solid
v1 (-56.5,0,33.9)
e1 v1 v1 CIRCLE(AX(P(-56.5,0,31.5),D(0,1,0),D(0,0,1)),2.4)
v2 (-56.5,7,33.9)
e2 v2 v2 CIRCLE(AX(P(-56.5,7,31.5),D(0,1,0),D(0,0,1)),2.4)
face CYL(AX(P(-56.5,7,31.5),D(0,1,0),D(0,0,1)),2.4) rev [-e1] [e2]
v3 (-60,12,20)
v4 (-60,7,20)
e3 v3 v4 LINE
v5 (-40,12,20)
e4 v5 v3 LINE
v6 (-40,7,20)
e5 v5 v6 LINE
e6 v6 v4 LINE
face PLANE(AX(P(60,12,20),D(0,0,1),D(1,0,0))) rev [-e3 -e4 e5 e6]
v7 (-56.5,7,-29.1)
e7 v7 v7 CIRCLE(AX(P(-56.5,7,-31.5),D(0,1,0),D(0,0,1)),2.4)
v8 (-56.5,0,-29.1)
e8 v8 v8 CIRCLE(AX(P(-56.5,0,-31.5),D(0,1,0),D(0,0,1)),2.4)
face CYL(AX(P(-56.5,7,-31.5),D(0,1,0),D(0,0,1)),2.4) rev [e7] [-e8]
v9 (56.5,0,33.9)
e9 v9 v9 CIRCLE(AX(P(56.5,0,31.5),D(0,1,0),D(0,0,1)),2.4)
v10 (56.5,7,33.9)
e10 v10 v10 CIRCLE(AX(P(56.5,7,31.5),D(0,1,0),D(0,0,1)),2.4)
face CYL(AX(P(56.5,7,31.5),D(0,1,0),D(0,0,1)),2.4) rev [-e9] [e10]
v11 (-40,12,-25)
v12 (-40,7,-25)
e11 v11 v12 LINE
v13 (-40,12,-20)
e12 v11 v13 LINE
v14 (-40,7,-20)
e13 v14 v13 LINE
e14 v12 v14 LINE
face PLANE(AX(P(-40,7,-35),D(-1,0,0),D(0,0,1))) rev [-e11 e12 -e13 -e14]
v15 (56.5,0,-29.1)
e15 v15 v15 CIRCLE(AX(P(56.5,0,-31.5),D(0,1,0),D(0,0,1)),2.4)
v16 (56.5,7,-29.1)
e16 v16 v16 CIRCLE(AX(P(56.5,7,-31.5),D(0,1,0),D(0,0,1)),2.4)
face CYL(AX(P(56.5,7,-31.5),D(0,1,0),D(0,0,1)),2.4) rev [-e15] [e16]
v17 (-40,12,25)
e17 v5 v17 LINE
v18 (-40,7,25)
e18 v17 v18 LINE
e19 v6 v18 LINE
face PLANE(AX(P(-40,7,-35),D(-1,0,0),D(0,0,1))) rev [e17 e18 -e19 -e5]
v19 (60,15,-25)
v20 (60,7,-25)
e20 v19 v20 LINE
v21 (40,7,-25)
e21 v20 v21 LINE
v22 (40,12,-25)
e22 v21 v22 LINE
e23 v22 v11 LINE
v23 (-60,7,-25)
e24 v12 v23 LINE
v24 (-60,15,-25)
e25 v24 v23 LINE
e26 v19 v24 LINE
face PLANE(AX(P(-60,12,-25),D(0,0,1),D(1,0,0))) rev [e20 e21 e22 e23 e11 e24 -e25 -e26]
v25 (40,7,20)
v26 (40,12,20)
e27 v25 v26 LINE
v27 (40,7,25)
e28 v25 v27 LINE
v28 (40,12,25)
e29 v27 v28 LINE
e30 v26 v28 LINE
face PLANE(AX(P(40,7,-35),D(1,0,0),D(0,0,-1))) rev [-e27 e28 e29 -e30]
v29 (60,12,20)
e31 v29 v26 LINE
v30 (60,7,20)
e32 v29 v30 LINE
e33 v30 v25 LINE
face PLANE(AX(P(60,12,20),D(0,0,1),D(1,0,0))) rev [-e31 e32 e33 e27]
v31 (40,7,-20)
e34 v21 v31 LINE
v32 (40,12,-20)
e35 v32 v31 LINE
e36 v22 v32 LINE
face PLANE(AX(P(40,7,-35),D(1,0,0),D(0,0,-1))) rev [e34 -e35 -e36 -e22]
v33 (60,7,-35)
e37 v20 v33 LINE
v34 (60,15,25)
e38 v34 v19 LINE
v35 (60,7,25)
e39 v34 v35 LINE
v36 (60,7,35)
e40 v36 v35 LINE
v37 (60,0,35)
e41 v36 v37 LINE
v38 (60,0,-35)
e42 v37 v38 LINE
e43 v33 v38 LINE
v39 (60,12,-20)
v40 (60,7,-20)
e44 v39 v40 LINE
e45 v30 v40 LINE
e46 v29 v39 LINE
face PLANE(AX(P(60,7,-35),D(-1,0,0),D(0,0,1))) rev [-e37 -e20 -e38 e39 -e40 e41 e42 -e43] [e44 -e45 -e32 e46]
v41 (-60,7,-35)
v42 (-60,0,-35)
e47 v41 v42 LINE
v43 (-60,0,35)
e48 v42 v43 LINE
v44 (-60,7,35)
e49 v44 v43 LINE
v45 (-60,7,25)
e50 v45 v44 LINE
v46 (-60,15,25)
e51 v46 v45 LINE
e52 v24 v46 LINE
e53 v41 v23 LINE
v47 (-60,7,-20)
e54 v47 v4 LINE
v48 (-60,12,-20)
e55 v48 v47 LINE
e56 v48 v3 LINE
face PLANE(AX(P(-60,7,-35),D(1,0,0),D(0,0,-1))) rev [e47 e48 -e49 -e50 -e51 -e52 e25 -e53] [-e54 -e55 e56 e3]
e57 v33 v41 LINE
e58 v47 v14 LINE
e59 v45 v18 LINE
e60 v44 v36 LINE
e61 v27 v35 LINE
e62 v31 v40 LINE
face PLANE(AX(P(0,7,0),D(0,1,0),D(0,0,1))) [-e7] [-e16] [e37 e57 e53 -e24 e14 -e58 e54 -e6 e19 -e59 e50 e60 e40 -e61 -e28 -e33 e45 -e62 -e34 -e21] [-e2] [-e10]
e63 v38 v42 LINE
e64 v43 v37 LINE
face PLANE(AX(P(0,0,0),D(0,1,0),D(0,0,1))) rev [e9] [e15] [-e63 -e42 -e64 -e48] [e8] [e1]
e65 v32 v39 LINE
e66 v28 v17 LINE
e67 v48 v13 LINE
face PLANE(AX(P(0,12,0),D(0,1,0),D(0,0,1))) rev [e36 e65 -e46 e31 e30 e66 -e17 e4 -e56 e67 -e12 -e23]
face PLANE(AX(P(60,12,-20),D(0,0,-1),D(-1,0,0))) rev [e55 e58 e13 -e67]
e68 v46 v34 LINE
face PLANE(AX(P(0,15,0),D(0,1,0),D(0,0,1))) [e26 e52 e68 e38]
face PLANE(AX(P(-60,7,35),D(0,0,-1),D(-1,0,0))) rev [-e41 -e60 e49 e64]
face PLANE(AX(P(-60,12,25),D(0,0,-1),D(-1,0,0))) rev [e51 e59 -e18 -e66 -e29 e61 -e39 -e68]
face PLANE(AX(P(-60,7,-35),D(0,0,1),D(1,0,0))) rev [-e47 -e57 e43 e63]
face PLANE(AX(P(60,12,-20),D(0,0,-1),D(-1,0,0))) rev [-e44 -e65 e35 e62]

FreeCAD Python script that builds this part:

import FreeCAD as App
import Part
import Sketcher

V = App.Vector

doc = App.newDocument("Part")
body = doc.addObject("PartDesign::Body", "Body")

# Sketch on XZ plane
sketch1 = body.newObject("Sketcher::SketchObject", "Sketch")
sketch1.AttachmentSupport = (doc.getObject("XZ_Plane"), [""])
sketch1.MapMode = "FlatFace"
sketch1.addGeometry(Part.LineSegment(V(-60, -35, 0), V(-60, 35, 0)), False)
sketch1.addGeometry(Part.LineSegment(V(-60, 35, 0), V(60, 35, 0)), False)
sketch1.addGeometry(Part.LineSegment(V(60, 35, 0), V(60, -35, 0)), False)
sketch1.addGeometry(Part.LineSegment(V(60, -35, 0), V(-60, -35, 0)), False)
sketch1.addConstraint(Sketcher.Constraint("Coincident", 0, 2, 1, 1))
sketch1.addConstraint(Sketcher.Constraint("Coincident", 1, 2, 2, 1))
sketch1.addConstraint(Sketcher.Constraint("Coincident", 2, 2, 3, 1))
sketch1.addConstraint(Sketcher.Constraint("Coincident", 3, 2, 0, 1))
sketch1.addConstraint(Sketcher.Constraint("Vertical", 0))
sketch1.addConstraint(Sketcher.Constraint("Horizontal", 1))
sketch1.addConstraint(Sketcher.Constraint("Vertical", 2))
sketch1.addConstraint(Sketcher.Constraint("Horizontal", 3))
sketch1.addConstraint(Sketcher.Constraint("Symmetric", 0, 2, 2, 2, -1, 1))
sketch1.addConstraint(Sketcher.Constraint("DistanceX", 1, 1, 1, 2, 120.0))
sketch1.addConstraint(Sketcher.Constraint("DistanceY", 0, 1, 0, 2, 70.0))
pad1 = body.newObject("PartDesign::Pad", "Pad")
pad1.Profile = sketch1
pad1.Length = 7
pad1.Reversed = True

# Sketch on XZ plane
sketch2 = body.newObject("Sketcher::SketchObject", "Sketch001")
sketch2.AttachmentSupport = (doc.getObject("XZ_Plane"), [""])
sketch2.MapMode = "FlatFace"
sketch2.AttachmentOffset = App.Placement(V(0, 0, -7), App.Rotation())
sketch2.addGeometry(Part.Circle(V(56.5, -31.5, 0), V(0, 0, 1), 2.4), False)
sketch2.addGeometry(Part.Circle(V(56.5, 31.5, 0), V(0, 0, 1), 2.4), False)
sketch2.addGeometry(Part.Circle(V(-56.5, 31.5, 0), V(0, 0, 1), 2.4), False)
sketch2.addGeometry(Part.Circle(V(-56.5, -31.5, 0), V(0, 0, 1), 2.4), False)
sketch2.addConstraint(Sketcher.Constraint("Equal", 0, 1))
sketch2.addConstraint(Sketcher.Constraint("Equal", 1, 2))
sketch2.addConstraint(Sketcher.Constraint("Equal", 2, 3))
sketch2.addConstraint(Sketcher.Constraint("Symmetric", 0, 3, 2, 3, -1, 1))
sketch2.addConstraint(Sketcher.Constraint("Symmetric", 1, 3, 3, 3, -1, 1))
sketch2.addConstraint(Sketcher.Constraint("Symmetric", 1, 3, 2, 3, -2))
sketch2.addConstraint(Sketcher.Constraint("Diameter", 0, 4.8))
sketch2.addConstraint(Sketcher.Constraint("DistanceY", 0, 3, 1, 3, 63.0))
sketch2.addConstraint(Sketcher.Constraint("DistanceX", 2, 3, 1, 3, 113.0))
doc.recompute()
hole = body.newObject("PartDesign::Hole", "Hole")
hole.Profile = sketch2
hole.ThreadType = "None"
hole.Diameter = 4.8
hole.DepthType = "ThroughAll"
hole.Reversed = True

# Sketch on XZ plane
sketch3 = body.newObject("Sketcher::SketchObject", "Sketch002")
sketch3.AttachmentSupport = (doc.getObject("XZ_Plane"), [""])
sketch3.MapMode = "FlatFace"
sketch3.AttachmentOffset = App.Placement(V(0, 0, -7), App.Rotation())
sketch3.addGeometry(Part.LineSegment(V(-60, -25, 0), V(-60, -20, 0)), False)
sketch3.addGeometry(Part.LineSegment(V(-60, -20, 0), V(60, -20, 0)), False)
sketch3.addGeometry(Part.LineSegment(V(60, -20, 0), V(60, -25, 0)), False)
sketch3.addGeometry(Part.LineSegment(V(60, -25, 0), V(-60, -25, 0)), False)
sketch3.addGeometry(Part.LineSegment(V(-60, 20, 0), V(-60, 25, 0)), False)
sketch3.addGeometry(Part.LineSegment(V(-60, 25, 0), V(60, 25, 0)), False)
sketch3.addGeometry(Part.LineSegment(V(60, 25, 0), V(60, 20, 0)), False)
sketch3.addGeometry(Part.LineSegment(V(60, 20, 0), V(-60, 20, 0)), False)
sketch3.addConstraint(Sketcher.Constraint("Coincident", 0, 2, 1, 1))
sketch3.addConstraint(Sketcher.Constraint("Coincident", 1, 2, 2, 1))
sketch3.addConstraint(Sketcher.Constraint("Coincident", 2, 2, 3, 1))
sketch3.addConstraint(Sketcher.Constraint("Coincident", 3, 2, 0, 1))
sketch3.addConstraint(Sketcher.Constraint("Coincident", 4, 2, 5, 1))
sketch3.addConstraint(Sketcher.Constraint("Coincident", 5, 2, 6, 1))
sketch3.addConstraint(Sketcher.Constraint("Coincident", 6, 2, 7, 1))
sketch3.addConstraint(Sketcher.Constraint("Coincident", 7, 2, 4, 1))
sketch3.addConstraint(Sketcher.Constraint("Vertical", 0))
sketch3.addConstraint(Sketcher.Constraint("Horizontal", 1))
sketch3.addConstraint(Sketcher.Constraint("Vertical", 2))
sketch3.addConstraint(Sketcher.Constraint("Horizontal", 3))
sketch3.addConstraint(Sketcher.Constraint("Vertical", 4))
sketch3.addConstraint(Sketcher.Constraint("Horizontal", 5))
sketch3.addConstraint(Sketcher.Constraint("Vertical", 6))
sketch3.addConstraint(Sketcher.Constraint("Horizontal", 7))
sketch3.addConstraint(Sketcher.Constraint("Symmetric", 2, 2, 4, 2, -1, 1))
sketch3.addConstraint(Sketcher.Constraint("Symmetric", 0, 2, 6, 2, -1, 1))
sketch3.addConstraint(Sketcher.Constraint("Vertical", 3, 2, 4, 2))
sketch3.addConstraint(Sketcher.Constraint("DistanceX", 1, 1, 1, 2, 120.0))
sketch3.addConstraint(Sketcher.Constraint("DistanceY", 0, 1, 0, 2, 5.0))
sketch3.addConstraint(Sketcher.Constraint("DistanceY", 0, 2, -1, 1, 20.0))
pad2 = body.newObject("PartDesign::Pad", "Pad001")
pad2.Profile = sketch3
pad2.Length = 5
pad2.Reversed = True

# Sketch on XZ plane
sketch4 = body.newObject("Sketcher::SketchObject", "Sketch003")
sketch4.AttachmentSupport = (doc.getObject("XZ_Plane"), [""])
sketch4.MapMode = "FlatFace"
sketch4.AttachmentOffset = App.Placement(V(0, 0, -12), App.Rotation())
sketch4.addGeometry(Part.LineSegment(V(-60, -25, 0), V(-60, 25, 0)), False)
sketch4.addGeometry(Part.LineSegment(V(-60, 25, 0), V(60, 25, 0)), False)
sketch4.addGeometry(Part.LineSegment(V(60, 25, 0), V(60, -25, 0)), False)
sketch4.addGeometry(Part.LineSegment(V(60, -25, 0), V(-60, -25, 0)), False)
sketch4.addConstraint(Sketcher.Constraint("Coincident", 0, 2, 1, 1))
sketch4.addConstraint(Sketcher.Constraint("Coincident", 1, 2, 2, 1))
sketch4.addConstraint(Sketcher.Constraint("Coincident", 2, 2, 3, 1))
sketch4.addConstraint(Sketcher.Constraint("Coincident", 3, 2, 0, 1))
sketch4.addConstraint(Sketcher.Constraint("Vertical", 0))
sketch4.addConstraint(Sketcher.Constraint("Horizontal", 1))
sketch4.addConstraint(Sketcher.Constraint("Vertical", 2))
sketch4.addConstraint(Sketcher.Constraint("Horizontal", 3))
sketch4.addConstraint(Sketcher.Constraint("Symmetric", 0, 2, 2, 2, -1, 1))
sketch4.addConstraint(Sketcher.Constraint("DistanceX", 1, 1, 1, 2, 120.0))
sketch4.addConstraint(Sketcher.Constraint("DistanceY", 0, 1, 0, 2, 50.0))
pad3 = body.newObject("PartDesign::Pad", "Pad002")
pad3.Profile = sketch4
pad3.Length = 3
pad3.Reversed = True

# Sketch on XY plane
sketch5 = body.newObject("Sketcher::SketchObject", "Sketch004")
sketch5.AttachmentSupport = (doc.getObject("XY_Plane"), [""])
sketch5.MapMode = "FlatFace"
sketch5.AttachmentOffset = App.Placement(V(0, 0, 25), App.Rotation())
sketch5.addGeometry(Part.LineSegment(V(-40, 12, 0), V(-40, 7, 0)), False)
sketch5.addGeometry(Part.LineSegment(V(-40, 7, 0), V(40, 7, 0)), False)
sketch5.addGeometry(Part.LineSegment(V(40, 7, 0), V(40, 12, 0)), False)
sketch5.addGeometry(Part.LineSegment(V(40, 12, 0), V(-40, 12, 0)), False)
sketch5.addConstraint(Sketcher.Constraint("Coincident", 0, 2, 1, 1))
sketch5.addConstraint(Sketcher.Constraint("Coincident", 1, 2, 2, 1))
sketch5.addConstraint(Sketcher.Constraint("Coincident", 2, 2, 3, 1))
sketch5.addConstraint(Sketcher.Constraint("Coincident", 3, 2, 0, 1))
sketch5.addConstraint(Sketcher.Constraint("Vertical", 0))
sketch5.addConstraint(Sketcher.Constraint("Horizontal", 1))
sketch5.addConstraint(Sketcher.Constraint("Vertical", 2))
sketch5.addConstraint(Sketcher.Constraint("Horizontal", 3))
sketch5.addConstraint(Sketcher.Constraint("DistanceX", 1, 1, 1, 2, 80.0))
sketch5.addConstraint(Sketcher.Constraint("DistanceY", 0, 2, 0, 1, 5.0))
sketch5.addConstraint(Sketcher.Constraint("DistanceX", 0, 2, -1, 1, 40.0))
sketch5.addConstraint(Sketcher.Constraint("DistanceY", -1, 1, 0, 2, 7.0))
pocket1 = body.newObject("PartDesign::Pocket", "Pocket")
pocket1.Profile = sketch5
pocket1.Type = "ThroughAll"

doc.recompute()
